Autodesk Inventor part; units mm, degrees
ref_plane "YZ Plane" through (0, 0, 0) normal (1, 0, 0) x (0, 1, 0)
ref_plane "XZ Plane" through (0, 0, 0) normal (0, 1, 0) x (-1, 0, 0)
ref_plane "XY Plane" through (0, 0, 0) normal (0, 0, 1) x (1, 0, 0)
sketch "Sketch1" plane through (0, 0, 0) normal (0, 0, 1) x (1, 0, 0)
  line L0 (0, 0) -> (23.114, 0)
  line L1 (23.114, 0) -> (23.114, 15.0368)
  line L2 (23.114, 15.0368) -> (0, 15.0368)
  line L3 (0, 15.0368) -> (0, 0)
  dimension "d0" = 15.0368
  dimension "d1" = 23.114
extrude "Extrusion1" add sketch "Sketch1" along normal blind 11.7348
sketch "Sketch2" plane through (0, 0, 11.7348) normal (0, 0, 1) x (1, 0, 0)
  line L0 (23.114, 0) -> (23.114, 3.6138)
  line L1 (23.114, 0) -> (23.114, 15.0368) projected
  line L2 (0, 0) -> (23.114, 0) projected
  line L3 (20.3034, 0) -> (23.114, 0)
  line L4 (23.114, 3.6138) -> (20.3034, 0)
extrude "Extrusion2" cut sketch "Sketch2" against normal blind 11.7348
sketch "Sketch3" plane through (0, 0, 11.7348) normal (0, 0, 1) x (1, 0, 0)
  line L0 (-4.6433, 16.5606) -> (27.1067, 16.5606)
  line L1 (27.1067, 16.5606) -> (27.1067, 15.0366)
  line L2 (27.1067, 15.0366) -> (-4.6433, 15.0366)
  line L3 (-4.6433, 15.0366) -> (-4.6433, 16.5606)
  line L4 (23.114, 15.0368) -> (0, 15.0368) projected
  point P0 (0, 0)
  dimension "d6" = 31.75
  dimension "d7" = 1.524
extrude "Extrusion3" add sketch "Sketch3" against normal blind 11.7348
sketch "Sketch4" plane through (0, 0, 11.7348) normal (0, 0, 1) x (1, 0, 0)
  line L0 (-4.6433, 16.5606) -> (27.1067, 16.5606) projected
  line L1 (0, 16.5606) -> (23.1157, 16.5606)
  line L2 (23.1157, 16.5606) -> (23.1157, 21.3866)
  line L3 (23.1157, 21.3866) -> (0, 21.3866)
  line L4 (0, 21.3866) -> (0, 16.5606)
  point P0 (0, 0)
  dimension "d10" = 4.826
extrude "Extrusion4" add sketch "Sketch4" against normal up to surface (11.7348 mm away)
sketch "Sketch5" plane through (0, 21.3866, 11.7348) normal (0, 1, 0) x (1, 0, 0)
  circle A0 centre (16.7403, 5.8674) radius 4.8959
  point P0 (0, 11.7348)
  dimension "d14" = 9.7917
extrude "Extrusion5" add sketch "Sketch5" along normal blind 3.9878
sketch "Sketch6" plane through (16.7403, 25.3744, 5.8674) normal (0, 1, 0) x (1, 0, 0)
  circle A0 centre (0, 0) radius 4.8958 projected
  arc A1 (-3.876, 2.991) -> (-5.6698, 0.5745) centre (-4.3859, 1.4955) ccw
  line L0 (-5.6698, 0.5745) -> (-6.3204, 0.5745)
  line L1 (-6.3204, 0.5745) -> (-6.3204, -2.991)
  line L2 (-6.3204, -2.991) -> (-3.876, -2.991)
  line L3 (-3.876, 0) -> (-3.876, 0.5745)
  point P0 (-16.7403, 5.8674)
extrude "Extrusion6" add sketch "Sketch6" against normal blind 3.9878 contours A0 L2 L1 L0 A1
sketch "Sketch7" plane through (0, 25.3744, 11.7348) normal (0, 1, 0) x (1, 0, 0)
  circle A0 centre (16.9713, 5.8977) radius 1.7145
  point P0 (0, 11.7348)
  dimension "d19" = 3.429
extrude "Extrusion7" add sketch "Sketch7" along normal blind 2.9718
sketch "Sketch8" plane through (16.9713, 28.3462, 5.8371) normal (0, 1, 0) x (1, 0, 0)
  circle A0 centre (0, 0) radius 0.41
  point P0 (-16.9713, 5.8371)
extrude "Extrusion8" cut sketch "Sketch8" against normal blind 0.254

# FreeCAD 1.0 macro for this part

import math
import FreeCAD as App
import Part
import Sketcher

V = App.Vector
Q = App.Units.Quantity

doc = App.newDocument("Part")
body = doc.addObject("PartDesign::Body", "Body")

# Sketch on XY plane
sketch1 = body.newObject("Sketcher::SketchObject", "Sketch")
sketch1.AttachmentSupport = (doc.getObject("XY_Plane"), [""])
sketch1.MapMode = "FlatFace"
sketch1.addGeometry([
    Part.LineSegment(V(0, 15.0368, 0), V(0, 0, 0)),
    Part.LineSegment(V(0, 0, 0), V(23.114, 0, 0)),
    Part.LineSegment(V(23.114, 0, 0), V(23.114, 15.0368, 0)),
    Part.LineSegment(V(23.114, 15.0368, 0), V(0, 15.0368, 0)),
], False)
sketch1.addConstraint([
    Sketcher.Constraint("Coincident", 0, 2, 1, 1),
    Sketcher.Constraint("Coincident", 1, 2, 2, 1),
    Sketcher.Constraint("Coincident", 2, 2, 3, 1),
    Sketcher.Constraint("Coincident", 3, 2, 0, 1),
    Sketcher.Constraint("Vertical", 0),
    Sketcher.Constraint("Horizontal", 1),
    Sketcher.Constraint("Vertical", 2),
    Sketcher.Constraint("Horizontal", 3),
    Sketcher.Constraint("Coincident", 0, 2, -1, 1),
    Sketcher.Constraint("DistanceX", 1, 1, 1, 2, Q("0.91 in")),
    Sketcher.Constraint("DistanceY", 0, 2, 0, 1, Q("0.592 in")),
])
pad1 = body.newObject("PartDesign::Pad", "Pad")
pad1.Profile = sketch1
pad1.Length = Q("0.462 in")

# Sketch on XY plane
sketch2 = body.newObject("Sketcher::SketchObject", "Sketch001")
sketch2.AttachmentSupport = (doc.getObject("XY_Plane"), [""])
sketch2.MapMode = "FlatFace"
sketch2.AttachmentOffset = App.Placement(V(0, 0, 0.462 * 25.4), App.Rotation())
sketch2.addGeometry([
    Part.LineSegment(V(20.3034, 0, 0), V(23.114, 0, 0)),
    Part.LineSegment(V(23.114, 0, 0), V(23.114, 3.6138, 0)),
    Part.LineSegment(V(23.114, 3.6138, 0), V(20.3034, 0, 0)),
], False)
sketch2.addConstraint([
    Sketcher.Constraint("Coincident", 0, 2, 1, 1),
    Sketcher.Constraint("Coincident", 1, 2, 2, 1),
    Sketcher.Constraint("Coincident", 2, 2, 0, 1),
    Sketcher.Constraint("Horizontal", 0),
    Sketcher.Constraint("Vertical", 1),
    Sketcher.Constraint("PointOnObject", 0, 2, -1),
    Sketcher.Constraint("DistanceX", -1, 1, 0, 2, Q("0.91 in")),
    Sketcher.Constraint("DistanceX", 0, 1, 0, 2, 2.8106),
    Sketcher.Constraint("DistanceY", 1, 1, 1, 2, 3.6138),
])
pocket1 = body.newObject("PartDesign::Pocket", "Pocket")
pocket1.Profile = sketch2
pocket1.Length = Q("0.462 in")

# Sketch on XY plane
sketch3 = body.newObject("Sketcher::SketchObject", "Sketch002")
sketch3.AttachmentSupport = (doc.getObject("XY_Plane"), [""])
sketch3.MapMode = "FlatFace"
sketch3.AttachmentOffset = App.Placement(V(0, 0, 0.462 * 25.4), App.Rotation())
sketch3.addGeometry([
    Part.LineSegment(V(27.1067, 16.5606, 0), V(-4.6433, 16.5606, 0)),  # 0
    Part.LineSegment(V(-4.6433, 16.5606, 0), V(-4.6433, 15.0366, 0)),  # 1
    Part.LineSegment(V(-4.6433, 15.0366, 0), V(0, 15.0366, 0)),  # 2
    Part.LineSegment(V(0, 15.0368, 0), V(23.114, 15.0368, 0)),  # 3
    Part.LineSegment(V(23.114, 15.0366, 0), V(27.1067, 15.0366, 0)),  # 4
    Part.LineSegment(V(27.1067, 15.0366, 0), V(27.1067, 16.5606, 0)),  # 5
], False)
sketch3.addConstraint([
    Sketcher.Constraint("Coincident", 0, 2, 1, 1),
    Sketcher.Constraint("Coincident", 1, 2, 2, 1),
    Sketcher.Constraint("Coincident", 2, 2, 3, 1),
    Sketcher.Constraint("Coincident", 3, 2, 4, 1),
    Sketcher.Constraint("Coincident", 4, 2, 5, 1),
    Sketcher.Constraint("Coincident", 5, 2, 0, 1),
    Sketcher.Constraint("Horizontal", 0),
    Sketcher.Constraint("Vertical", 1),
    Sketcher.Constraint("Horizontal", 2),
    Sketcher.Constraint("Horizontal", 3),
    Sketcher.Constraint("Horizontal", 4),
    Sketcher.Constraint("Vertical", 5),
    Sketcher.Constraint("PointOnObject", 2, 2, -2),
    Sketcher.Constraint("DistanceX", 0, 2, 0, 1, Q("1.25 in")),
    Sketcher.Constraint("DistanceY", 1, 2, 1, 1, Q("0.06 in")),
    Sketcher.Constraint("DistanceX", 3, 1, 3, 2, Q("0.91 in")),
    Sketcher.Constraint("DistanceX", 2, 1, 2, 2, Q("0.1828 in")),
    Sketcher.Constraint("DistanceY", -1, 1, 0, 2, Q("0.652 in")),
])
pad2 = body.newObject("PartDesign::Pad", "Pad001")
pad2.Profile = sketch3
pad2.Length = Q("0.462 in")
pad2.Reversed = True

# Sketch on XY plane
sketch4 = body.newObject("Sketcher::SketchObject", "Sketch003")
sketch4.AttachmentSupport = (doc.getObject("XY_Plane"), [""])
sketch4.MapMode = "FlatFace"
sketch4.AttachmentOffset = App.Placement(V(0, 0, 0.462 * 25.4), App.Rotation())
sketch4.addGeometry([
    Part.LineSegment(V(0, 21.3866, 0), V(0, 16.5606, 0)),
    Part.LineSegment(V(0, 16.5606, 0), V(23.1157, 16.5606, 0)),
    Part.LineSegment(V(23.1157, 16.5606, 0), V(23.1157, 21.3866, 0)),
    Part.LineSegment(V(23.1157, 21.3866, 0), V(0, 21.3866, 0)),
], False)
sketch4.addConstraint([
    Sketcher.Constraint("Coincident", 0, 2, 1, 1),
    Sketcher.Constraint("Coincident", 1, 2, 2, 1),
    Sketcher.Constraint("Coincident", 2, 2, 3, 1),
    Sketcher.Constraint("Coincident", 3, 2, 0, 1),
    Sketcher.Constraint("Vertical", 0),
    Sketcher.Constraint("Horizontal", 1),
    Sketcher.Constraint("Vertical", 2),
    Sketcher.Constraint("Horizontal", 3),
    Sketcher.Constraint("PointOnObject", 0, 2, -2),
    Sketcher.Constraint("DistanceY", 0, 2, 0, 1, Q("0.19 in")),
    Sketcher.Constraint("DistanceY", -1, 1, 0, 2, Q("0.652 in")),
    Sketcher.Constraint("DistanceX", 1, 1, 1, 2, 23.1157),
])
pad3 = body.newObject("PartDesign::Pad", "Pad002")
pad3.Profile = sketch4
pad3.Length = Q("0.462 in")
pad3.Reversed = True

# Sketch on XZ plane
sketch5 = body.newObject("Sketcher::SketchObject", "Sketch004")
sketch5.AttachmentSupport = (doc.getObject("XZ_Plane"), [""])
sketch5.MapMode = "FlatFace"
sketch5.AttachmentOffset = App.Placement(V(0, 0, -0.8419921 * 25.4), App.Rotation())
sketch5.addGeometry(Part.Circle(V(16.7403, 5.8674, 0), V(0, 0, 1), 4.8959), False)
sketch5.addConstraint([
    Sketcher.Constraint("Diameter", 0, Q("0.3855 in")),
    Sketcher.Constraint("DistanceY", -1, 1, 0, 3, Q("0.231 in")),
    Sketcher.Constraint("DistanceX", -1, 1, 0, 3, 16.7403),
])
pad4 = body.newObject("PartDesign::Pad", "Pad003")
pad4.Profile = sketch5
pad4.Length = Q("0.157 in")
pad4.Reversed = True

# Sketch on XZ plane
sketch6 = body.newObject("Sketcher::SketchObject", "Sketch005")
sketch6.AttachmentSupport = (doc.getObject("XZ_Plane"), [""])
sketch6.MapMode = "FlatFace"
sketch6.AttachmentOffset = App.Placement(V(0, 0, -0.9989921 * 25.4), App.Rotation())
sketch6.addGeometry([
    Part.ArcOfCircle(Part.Circle(V(16.7403, 5.8674, 0), V(0, 0, 1), 4.8958), math.radians(142.343643), math.radians(217.656357)),  # 0
    Part.ArcOfCircle(Part.Circle(V(12.3544, 4.3719, 0), V(0, 0, 1), 1.580037), math.radians(144.346401), math.radians(288.827128)),  # 1
    Part.LineSegment(V(11.0705, 5.2929, 0), V(10.4199, 5.2929, 0)),  # 2
    Part.LineSegment(V(10.4199, 5.2929, 0), V(10.4199, 8.8584, 0)),  # 3
    Part.LineSegment(V(10.4199, 8.8584, 0), V(12.8643, 8.8584, 0)),  # 4
], False)
sketch6.addConstraint([
    Sketcher.Constraint("Coincident", 0, 2, 1, 2),
    Sketcher.Constraint("Coincident", 1, 1, 2, 1),
    Sketcher.Constraint("Coincident", 2, 2, 3, 1),
    Sketcher.Constraint("Coincident", 3, 2, 4, 1),
    Sketcher.Constraint("Coincident", 4, 2, 0, 1),
    Sketcher.Constraint("Horizontal", 2),
    Sketcher.Constraint("Vertical", 3),
    Sketcher.Constraint("Horizontal", 4),
    Sketcher.Constraint("Vertical", 0, 2, 4, 2),
    Sketcher.Constraint("Radius", 1, Q("0.0622 in")),
    Sketcher.Constraint("Radius", 0, 4.8958),
    Sketcher.Constraint("DistanceY", -1, 1, 0, 3, Q("0.231 in")),
    Sketcher.Constraint("DistanceX", 2, 2, 2, 1, 0.6506),
    Sketcher.Constraint("DistanceX", 4, 1, 4, 2, 2.4444),
    Sketcher.Constraint("DistanceY", 3, 1, 3, 2, 3.5655),
    Sketcher.Constraint("DistanceX", -1, 1, 1, 3, Q("0.4864 in")),
    Sketcher.Constraint("DistanceX", 0, 2, 0, 3, Q("0.1526 in")),
])
pad5 = body.newObject("PartDesign::Pad", "Pad004")
pad5.Profile = sketch6
pad5.Length = Q("0.157 in")

# Sketch on XZ plane
sketch7 = body.newObject("Sketcher::SketchObject", "Sketch006")
sketch7.AttachmentSupport = (doc.getObject("XZ_Plane"), [""])
sketch7.MapMode = "FlatFace"
sketch7.AttachmentOffset = App.Placement(V(0, 0, -0.9989921 * 25.4), App.Rotation())
sketch7.addGeometry(Part.Circle(V(16.9713, 5.8371, 0), V(0, 0, 1), 1.7145), False)
sketch7.addConstraint([
    Sketcher.Constraint("Diameter", 0, Q("0.135 in")),
    Sketcher.Constraint("DistanceY", -1, 1, 0, 3, Q("0.2298 in")),
    Sketcher.Constraint("DistanceX", -1, 1, 0, 3, 16.9713),
])
pad6 = body.newObject("PartDesign::Pad", "Pad005")
pad6.Profile = sketch7
pad6.Length = Q("0.117 in")
pad6.Reversed = True

# Sketch on XZ plane
sketch8 = body.newObject("Sketcher::SketchObject", "Sketch007")
sketch8.AttachmentSupport = (doc.getObject("XZ_Plane"), [""])
sketch8.MapMode = "FlatFace"
sketch8.AttachmentOffset = App.Placement(V(0, 0, -1.1159921 * 25.4), App.Rotation())
sketch8.addGeometry(Part.Circle(V(16.9713, 5.8371, 0), V(0, 0, 1), 0.41), False)
sketch8.addConstraint([
    Sketcher.Constraint("Diameter", 0, 0.82),
    Sketcher.Constraint("DistanceY", -1, 1, 0, 3, Q("0.2298 in")),
    Sketcher.Constraint("DistanceX", -1, 1, 0, 3, 16.9713),
])
pocket2 = body.newObject("PartDesign::Pocket", "Pocket001")
pocket2.Profile = sketch8
pocket2.Length = Q("0.01 in")
pocket2.Reversed = True

doc.recompute()
